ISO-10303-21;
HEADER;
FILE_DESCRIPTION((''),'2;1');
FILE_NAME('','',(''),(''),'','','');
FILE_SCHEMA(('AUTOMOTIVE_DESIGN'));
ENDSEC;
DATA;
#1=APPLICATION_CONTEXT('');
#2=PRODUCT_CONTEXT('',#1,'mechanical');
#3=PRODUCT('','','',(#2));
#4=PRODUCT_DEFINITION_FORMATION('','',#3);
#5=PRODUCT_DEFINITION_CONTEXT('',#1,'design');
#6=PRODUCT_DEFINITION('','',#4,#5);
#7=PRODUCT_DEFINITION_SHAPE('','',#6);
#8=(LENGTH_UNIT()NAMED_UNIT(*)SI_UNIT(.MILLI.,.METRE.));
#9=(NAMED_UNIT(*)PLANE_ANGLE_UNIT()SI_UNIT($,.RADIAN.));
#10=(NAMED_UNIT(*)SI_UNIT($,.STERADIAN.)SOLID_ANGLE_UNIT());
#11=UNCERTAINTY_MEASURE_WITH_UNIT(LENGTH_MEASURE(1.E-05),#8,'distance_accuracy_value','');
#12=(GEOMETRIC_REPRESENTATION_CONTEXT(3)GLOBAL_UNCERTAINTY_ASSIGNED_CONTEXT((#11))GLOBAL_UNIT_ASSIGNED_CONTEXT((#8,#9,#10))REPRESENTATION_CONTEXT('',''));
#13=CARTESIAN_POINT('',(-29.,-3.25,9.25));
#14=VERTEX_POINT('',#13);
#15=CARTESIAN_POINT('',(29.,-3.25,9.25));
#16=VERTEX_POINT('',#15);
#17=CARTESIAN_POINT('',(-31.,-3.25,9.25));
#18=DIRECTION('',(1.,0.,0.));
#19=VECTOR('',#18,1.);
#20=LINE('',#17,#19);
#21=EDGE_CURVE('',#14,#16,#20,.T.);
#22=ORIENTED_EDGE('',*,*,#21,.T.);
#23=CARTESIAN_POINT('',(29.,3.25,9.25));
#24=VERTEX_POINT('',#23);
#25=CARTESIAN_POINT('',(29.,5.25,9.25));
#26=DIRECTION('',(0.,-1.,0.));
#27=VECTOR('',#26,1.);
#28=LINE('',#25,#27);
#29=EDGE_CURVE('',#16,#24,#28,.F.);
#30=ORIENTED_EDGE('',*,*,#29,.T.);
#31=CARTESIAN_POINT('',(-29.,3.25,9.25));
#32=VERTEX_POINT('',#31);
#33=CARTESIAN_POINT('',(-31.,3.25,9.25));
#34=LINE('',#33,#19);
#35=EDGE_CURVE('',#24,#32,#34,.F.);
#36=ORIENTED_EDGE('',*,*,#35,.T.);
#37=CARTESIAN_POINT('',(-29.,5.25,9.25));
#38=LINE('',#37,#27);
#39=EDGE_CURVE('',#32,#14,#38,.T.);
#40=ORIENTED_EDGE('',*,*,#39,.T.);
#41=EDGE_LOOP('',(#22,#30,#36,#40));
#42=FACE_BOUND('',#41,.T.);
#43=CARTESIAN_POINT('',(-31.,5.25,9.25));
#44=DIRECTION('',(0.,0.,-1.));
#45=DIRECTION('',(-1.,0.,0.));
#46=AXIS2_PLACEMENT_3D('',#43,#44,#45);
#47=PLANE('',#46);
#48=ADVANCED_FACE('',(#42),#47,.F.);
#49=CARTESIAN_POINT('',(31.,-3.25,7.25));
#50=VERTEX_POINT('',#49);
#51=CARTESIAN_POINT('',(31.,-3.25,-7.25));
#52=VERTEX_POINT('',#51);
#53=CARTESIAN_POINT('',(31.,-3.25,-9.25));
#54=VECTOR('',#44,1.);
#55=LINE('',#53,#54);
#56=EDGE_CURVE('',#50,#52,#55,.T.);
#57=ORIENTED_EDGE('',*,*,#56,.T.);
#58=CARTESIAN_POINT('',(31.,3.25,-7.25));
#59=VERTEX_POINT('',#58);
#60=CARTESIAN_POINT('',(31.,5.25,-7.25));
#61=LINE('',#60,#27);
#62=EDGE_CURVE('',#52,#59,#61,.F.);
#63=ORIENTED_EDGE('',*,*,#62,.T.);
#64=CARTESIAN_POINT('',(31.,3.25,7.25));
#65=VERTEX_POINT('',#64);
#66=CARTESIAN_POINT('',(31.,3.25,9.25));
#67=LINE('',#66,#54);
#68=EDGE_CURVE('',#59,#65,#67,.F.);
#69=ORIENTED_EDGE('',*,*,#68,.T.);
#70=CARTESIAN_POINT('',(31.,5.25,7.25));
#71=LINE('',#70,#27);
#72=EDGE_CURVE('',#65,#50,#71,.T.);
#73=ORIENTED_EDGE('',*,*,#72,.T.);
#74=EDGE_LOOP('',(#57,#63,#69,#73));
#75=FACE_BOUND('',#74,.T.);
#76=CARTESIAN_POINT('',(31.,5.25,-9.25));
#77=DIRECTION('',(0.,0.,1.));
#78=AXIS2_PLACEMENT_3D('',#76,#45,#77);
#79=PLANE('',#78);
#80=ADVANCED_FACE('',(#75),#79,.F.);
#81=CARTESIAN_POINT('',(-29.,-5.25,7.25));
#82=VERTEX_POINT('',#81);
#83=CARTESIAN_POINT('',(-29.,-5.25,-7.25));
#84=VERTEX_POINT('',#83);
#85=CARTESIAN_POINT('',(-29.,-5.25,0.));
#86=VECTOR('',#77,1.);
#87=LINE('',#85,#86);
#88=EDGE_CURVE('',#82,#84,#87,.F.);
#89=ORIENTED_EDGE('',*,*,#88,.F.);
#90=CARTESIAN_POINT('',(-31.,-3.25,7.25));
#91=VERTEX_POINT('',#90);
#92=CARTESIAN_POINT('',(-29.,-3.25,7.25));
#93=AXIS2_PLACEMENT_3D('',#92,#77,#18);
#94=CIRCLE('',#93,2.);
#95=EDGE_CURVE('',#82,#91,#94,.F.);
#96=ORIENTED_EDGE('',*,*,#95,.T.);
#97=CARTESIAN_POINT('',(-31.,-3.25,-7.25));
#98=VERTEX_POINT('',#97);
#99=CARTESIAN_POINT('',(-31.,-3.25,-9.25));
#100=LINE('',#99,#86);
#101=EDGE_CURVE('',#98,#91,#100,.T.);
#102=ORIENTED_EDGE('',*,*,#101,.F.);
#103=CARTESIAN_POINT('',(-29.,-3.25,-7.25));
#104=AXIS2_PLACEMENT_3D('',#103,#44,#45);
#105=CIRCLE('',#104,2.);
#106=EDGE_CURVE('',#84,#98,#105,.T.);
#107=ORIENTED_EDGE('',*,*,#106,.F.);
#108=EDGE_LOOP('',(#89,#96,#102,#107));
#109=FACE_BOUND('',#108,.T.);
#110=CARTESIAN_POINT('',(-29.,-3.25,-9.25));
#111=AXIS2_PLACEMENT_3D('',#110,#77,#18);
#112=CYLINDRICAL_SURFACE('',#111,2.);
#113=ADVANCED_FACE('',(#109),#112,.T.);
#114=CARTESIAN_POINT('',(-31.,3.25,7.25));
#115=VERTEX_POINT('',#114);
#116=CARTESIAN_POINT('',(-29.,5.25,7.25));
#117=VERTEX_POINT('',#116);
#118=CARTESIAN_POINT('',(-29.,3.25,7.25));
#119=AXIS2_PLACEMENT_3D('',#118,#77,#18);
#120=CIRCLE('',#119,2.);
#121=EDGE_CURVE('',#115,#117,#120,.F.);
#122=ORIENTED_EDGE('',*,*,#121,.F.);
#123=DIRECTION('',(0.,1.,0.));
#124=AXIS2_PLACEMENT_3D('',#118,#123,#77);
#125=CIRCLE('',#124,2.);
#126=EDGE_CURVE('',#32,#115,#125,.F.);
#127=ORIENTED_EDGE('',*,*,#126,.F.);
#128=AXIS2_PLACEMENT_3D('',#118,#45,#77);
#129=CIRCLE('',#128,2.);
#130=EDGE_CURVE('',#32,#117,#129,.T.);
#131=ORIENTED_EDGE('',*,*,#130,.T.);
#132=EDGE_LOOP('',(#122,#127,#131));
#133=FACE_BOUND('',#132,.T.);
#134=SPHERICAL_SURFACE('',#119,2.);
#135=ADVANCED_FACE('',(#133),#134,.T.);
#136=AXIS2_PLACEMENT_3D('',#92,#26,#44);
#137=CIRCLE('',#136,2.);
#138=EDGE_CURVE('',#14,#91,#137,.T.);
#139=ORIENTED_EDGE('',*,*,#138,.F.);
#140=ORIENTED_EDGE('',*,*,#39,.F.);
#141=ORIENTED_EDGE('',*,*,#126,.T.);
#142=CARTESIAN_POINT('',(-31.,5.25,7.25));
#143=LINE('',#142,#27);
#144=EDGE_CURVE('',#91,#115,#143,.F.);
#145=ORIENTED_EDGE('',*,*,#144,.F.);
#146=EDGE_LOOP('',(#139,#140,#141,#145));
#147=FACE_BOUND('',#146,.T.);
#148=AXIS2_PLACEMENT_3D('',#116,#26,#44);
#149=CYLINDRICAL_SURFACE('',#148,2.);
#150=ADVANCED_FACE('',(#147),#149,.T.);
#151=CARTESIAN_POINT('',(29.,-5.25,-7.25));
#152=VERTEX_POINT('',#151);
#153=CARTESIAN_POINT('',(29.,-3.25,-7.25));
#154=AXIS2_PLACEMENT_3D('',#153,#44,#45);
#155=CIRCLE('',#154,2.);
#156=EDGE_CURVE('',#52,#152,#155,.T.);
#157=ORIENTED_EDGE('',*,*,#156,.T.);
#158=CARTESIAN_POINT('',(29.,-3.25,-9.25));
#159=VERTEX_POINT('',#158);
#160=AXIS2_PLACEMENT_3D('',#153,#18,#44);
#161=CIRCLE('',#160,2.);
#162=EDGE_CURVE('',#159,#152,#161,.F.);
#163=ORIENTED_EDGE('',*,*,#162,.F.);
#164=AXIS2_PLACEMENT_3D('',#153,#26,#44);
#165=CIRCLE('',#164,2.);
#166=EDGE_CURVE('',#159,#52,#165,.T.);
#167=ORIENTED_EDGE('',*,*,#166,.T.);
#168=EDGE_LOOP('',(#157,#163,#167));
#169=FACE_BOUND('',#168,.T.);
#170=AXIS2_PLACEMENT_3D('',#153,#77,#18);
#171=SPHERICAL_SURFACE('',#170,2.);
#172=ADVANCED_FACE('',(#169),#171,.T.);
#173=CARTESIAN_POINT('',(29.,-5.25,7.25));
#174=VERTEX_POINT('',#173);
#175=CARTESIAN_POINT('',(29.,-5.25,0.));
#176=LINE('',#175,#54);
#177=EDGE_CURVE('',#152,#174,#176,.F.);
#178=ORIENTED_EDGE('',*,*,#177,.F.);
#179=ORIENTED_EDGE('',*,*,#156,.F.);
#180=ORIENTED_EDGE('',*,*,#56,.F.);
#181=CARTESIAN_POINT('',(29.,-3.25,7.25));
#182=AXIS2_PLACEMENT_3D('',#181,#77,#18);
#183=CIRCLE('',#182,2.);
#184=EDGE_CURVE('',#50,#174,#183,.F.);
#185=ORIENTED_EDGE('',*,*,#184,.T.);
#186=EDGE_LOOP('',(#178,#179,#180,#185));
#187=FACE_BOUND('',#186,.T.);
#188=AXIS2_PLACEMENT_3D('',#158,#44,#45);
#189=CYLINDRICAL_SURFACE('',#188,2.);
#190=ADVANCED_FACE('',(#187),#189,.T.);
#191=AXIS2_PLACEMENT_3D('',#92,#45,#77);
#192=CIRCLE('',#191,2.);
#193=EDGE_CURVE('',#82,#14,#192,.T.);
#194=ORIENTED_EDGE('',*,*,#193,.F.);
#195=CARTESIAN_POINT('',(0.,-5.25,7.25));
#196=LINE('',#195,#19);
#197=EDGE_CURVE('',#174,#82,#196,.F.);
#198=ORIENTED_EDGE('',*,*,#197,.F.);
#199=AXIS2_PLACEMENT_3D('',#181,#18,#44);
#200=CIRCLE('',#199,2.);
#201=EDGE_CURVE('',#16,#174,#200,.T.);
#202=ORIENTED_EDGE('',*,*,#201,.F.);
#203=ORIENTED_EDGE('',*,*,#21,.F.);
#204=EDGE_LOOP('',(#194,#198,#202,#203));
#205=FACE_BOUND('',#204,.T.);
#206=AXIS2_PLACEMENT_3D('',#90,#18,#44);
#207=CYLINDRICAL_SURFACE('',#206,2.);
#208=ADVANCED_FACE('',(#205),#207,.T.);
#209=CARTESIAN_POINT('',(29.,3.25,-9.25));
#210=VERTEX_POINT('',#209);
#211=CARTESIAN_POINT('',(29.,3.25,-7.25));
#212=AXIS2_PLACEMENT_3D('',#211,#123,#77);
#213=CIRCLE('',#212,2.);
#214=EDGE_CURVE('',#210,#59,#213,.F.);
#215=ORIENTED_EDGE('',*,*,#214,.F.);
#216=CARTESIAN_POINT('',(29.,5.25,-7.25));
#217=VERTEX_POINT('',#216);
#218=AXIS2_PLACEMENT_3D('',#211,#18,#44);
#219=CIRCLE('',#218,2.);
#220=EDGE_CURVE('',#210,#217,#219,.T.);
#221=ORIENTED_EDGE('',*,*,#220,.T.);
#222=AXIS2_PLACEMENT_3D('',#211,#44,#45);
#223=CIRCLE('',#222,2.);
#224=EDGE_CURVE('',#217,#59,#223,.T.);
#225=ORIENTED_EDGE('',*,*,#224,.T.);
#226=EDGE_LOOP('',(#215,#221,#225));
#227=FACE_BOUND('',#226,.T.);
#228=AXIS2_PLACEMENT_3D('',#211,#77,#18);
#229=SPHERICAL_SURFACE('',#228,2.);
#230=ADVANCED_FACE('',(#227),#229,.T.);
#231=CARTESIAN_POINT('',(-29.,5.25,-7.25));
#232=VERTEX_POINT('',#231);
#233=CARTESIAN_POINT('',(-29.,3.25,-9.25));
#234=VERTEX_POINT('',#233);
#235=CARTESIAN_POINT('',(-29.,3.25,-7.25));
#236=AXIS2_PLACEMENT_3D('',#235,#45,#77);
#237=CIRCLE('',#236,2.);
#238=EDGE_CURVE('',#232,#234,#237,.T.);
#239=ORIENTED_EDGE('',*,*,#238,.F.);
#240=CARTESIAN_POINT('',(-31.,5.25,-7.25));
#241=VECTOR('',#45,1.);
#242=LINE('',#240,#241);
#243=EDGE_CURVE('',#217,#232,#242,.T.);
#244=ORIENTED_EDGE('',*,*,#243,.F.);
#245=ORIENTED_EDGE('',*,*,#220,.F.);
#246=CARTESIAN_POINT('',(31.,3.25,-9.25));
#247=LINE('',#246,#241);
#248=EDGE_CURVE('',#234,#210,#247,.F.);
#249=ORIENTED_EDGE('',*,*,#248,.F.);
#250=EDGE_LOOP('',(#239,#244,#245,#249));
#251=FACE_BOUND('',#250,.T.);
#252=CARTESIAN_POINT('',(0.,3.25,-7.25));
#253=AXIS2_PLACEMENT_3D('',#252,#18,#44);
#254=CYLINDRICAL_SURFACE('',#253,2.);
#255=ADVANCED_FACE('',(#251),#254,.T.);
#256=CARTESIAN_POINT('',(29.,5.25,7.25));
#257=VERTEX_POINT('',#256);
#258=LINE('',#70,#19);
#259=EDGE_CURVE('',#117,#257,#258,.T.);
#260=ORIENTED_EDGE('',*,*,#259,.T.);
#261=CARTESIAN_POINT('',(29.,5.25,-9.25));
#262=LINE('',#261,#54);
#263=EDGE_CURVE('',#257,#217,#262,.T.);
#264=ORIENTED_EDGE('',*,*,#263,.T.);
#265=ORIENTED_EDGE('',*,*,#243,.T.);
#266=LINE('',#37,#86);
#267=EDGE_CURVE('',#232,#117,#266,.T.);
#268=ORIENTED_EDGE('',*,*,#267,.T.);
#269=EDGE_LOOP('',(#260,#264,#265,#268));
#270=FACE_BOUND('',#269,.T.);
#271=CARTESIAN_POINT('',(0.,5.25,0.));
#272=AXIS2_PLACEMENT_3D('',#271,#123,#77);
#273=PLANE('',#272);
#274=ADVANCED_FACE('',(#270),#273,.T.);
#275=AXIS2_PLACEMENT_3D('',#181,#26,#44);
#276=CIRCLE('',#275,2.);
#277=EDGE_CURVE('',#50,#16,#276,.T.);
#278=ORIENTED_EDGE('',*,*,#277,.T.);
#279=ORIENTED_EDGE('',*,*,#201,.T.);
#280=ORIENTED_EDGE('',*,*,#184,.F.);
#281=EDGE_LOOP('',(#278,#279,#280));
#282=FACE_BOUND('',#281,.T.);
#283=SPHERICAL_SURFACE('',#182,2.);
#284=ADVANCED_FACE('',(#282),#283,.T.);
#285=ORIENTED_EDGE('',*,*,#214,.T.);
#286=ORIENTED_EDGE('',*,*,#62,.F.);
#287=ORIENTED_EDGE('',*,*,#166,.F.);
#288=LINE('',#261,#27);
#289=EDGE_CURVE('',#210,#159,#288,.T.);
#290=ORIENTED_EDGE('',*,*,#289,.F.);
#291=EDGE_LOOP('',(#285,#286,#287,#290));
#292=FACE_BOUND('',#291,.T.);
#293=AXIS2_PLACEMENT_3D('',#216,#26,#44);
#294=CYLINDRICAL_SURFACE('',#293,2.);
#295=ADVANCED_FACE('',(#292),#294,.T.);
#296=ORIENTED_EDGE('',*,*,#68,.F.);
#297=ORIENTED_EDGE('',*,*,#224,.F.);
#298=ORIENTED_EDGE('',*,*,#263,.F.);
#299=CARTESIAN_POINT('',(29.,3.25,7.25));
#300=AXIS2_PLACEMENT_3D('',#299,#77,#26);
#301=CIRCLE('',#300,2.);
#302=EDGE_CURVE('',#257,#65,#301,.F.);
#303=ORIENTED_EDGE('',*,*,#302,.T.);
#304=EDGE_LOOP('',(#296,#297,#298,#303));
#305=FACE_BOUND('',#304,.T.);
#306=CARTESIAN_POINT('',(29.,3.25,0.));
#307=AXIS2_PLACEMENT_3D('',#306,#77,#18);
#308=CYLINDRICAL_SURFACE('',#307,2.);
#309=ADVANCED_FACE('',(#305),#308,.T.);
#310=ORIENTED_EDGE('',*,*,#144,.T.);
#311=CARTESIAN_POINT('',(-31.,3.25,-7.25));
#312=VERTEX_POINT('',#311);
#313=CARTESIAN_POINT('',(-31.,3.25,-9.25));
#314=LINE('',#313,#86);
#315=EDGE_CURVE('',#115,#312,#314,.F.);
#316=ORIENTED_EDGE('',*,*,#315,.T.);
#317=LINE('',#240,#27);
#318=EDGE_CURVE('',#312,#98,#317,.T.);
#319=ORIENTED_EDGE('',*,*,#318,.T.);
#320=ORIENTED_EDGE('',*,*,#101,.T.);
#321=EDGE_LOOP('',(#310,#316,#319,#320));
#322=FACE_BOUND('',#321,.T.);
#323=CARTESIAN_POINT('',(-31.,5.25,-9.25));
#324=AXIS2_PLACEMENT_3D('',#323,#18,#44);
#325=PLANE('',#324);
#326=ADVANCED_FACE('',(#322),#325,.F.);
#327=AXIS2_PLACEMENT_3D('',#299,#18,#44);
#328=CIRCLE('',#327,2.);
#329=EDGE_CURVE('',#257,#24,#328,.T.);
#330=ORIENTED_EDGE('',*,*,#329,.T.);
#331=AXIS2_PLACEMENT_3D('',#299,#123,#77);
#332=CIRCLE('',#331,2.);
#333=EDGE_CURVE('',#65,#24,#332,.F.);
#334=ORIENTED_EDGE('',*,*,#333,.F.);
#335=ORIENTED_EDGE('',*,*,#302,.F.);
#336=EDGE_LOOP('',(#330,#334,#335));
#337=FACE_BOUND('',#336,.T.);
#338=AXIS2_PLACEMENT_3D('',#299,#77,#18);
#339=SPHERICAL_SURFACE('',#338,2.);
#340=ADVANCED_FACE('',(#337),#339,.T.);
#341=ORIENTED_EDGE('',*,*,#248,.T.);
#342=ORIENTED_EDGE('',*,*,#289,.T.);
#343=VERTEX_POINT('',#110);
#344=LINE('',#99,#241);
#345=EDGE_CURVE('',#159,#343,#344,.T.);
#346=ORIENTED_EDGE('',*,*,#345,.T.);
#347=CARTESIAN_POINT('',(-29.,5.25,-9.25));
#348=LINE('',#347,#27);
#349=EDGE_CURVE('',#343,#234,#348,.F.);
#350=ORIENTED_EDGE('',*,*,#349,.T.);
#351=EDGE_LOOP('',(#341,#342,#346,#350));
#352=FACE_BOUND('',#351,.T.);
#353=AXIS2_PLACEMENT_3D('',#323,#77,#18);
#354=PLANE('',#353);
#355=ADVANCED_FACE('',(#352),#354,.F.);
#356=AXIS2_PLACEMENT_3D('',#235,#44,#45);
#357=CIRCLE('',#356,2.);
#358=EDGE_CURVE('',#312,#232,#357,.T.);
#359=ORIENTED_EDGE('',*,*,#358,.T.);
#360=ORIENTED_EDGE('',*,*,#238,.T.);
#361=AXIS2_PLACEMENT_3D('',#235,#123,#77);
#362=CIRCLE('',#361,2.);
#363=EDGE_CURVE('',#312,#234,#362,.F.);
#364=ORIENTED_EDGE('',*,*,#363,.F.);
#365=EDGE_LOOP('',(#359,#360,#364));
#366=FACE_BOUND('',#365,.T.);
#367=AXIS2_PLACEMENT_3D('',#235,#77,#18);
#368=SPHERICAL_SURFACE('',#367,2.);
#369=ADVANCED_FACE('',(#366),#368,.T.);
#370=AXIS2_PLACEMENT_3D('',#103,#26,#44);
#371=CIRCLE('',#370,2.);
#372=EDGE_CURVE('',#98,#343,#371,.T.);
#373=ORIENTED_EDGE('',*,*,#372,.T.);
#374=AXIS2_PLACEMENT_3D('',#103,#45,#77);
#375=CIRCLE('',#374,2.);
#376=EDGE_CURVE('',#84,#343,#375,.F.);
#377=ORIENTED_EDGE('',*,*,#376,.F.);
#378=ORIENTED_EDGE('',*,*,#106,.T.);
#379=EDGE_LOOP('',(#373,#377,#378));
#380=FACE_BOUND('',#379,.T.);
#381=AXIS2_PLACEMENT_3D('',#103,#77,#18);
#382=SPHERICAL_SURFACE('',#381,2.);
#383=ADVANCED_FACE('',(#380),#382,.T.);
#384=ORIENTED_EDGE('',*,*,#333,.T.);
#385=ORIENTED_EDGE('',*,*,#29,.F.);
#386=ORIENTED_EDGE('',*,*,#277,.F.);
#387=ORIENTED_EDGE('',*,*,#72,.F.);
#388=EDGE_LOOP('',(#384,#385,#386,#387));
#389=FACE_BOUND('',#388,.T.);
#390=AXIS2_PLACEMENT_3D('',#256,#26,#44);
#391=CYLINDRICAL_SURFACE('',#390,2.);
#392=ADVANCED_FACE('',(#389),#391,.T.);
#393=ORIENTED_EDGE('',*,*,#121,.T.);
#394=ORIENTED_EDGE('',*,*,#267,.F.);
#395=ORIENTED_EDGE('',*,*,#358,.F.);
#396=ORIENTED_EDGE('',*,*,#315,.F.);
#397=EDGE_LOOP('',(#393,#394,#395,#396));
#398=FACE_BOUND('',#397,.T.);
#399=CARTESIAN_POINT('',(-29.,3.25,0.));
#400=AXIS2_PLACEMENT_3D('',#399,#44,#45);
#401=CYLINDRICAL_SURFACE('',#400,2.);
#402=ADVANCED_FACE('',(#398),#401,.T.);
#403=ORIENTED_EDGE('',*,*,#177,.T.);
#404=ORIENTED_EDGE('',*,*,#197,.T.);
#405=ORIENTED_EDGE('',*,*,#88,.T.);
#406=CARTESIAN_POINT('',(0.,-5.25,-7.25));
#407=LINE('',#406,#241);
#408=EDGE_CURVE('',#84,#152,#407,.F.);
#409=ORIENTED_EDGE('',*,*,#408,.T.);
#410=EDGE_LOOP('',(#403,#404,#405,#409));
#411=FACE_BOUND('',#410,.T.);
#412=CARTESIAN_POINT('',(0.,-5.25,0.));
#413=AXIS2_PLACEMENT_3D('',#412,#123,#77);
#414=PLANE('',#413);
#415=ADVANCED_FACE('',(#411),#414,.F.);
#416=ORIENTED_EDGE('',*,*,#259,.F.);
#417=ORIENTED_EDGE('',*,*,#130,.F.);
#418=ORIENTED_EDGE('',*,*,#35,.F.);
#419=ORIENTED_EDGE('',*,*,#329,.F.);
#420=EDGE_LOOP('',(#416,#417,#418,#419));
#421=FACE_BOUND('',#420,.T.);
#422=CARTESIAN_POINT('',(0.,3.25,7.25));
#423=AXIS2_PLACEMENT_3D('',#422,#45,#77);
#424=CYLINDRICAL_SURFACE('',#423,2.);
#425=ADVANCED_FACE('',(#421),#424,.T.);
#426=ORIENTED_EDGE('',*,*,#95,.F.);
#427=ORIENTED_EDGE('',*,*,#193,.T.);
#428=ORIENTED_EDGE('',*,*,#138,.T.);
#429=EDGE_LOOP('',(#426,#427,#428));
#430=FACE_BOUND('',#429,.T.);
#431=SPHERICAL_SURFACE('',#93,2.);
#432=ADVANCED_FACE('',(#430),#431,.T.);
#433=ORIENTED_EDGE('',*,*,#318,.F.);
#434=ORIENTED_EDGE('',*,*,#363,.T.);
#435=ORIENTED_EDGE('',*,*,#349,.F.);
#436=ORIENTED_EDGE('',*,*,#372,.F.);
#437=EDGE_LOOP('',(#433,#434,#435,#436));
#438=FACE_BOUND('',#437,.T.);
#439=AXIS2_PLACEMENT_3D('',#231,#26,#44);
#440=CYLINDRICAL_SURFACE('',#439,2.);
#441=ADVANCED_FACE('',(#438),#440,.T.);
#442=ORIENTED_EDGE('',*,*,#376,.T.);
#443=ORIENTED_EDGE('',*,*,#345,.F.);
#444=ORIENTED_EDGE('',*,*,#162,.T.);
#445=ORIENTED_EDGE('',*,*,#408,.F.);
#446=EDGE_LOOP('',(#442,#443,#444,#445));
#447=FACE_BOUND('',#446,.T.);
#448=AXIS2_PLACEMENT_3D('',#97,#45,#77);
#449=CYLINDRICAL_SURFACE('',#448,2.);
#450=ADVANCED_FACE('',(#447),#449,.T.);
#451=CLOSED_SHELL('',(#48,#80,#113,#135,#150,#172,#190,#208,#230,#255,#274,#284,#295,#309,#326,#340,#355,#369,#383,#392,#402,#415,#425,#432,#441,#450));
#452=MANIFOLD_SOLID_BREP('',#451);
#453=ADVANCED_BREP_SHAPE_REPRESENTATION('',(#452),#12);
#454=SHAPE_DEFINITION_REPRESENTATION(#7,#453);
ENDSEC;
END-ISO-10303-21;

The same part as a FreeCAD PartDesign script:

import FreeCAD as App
import Part
import Sketcher
from FreeCAD import Vector
Q = App.Units.Quantity

doc = App.newDocument("Part")
params = doc.addObject("Spreadsheet::Sheet", "Params")
for row, (alias, value) in enumerate([
    ("sketch1_width", "62 mm"),
    ("sketch1_height", "18.5 mm"),
    ("pad1_length", "10.5 mm"),
    ("fillet_radius", "2 mm"),
], start=1):
    params.set(f"A{row}", alias)
    params.set(f"B{row}", "=" + value)
    params.setAlias(f"B{row}", alias)

body = doc.addObject("PartDesign::Body", "Body")

sketch1 = body.newObject("Sketcher::SketchObject", "Sketch")
sketch1.AttachmentSupport = (doc.getObject("XZ_Plane"), [""])
sketch1.MapMode = "FlatFace"
sketch1.addGeometry(Part.LineSegment(Vector(-31, -9, 0), Vector(-31, 9, 0)), False)
sketch1.addGeometry(Part.LineSegment(Vector(-31, 9, 0), Vector(31, 9, 0)), False)
sketch1.addGeometry(Part.LineSegment(Vector(31, 9, 0), Vector(31, -9, 0)), False)
sketch1.addGeometry(Part.LineSegment(Vector(31, -9, 0), Vector(-31, -9, 0)), False)
sketch1.addConstraint(Sketcher.Constraint("Coincident", 0, 2, 1, 1))
sketch1.addConstraint(Sketcher.Constraint("Coincident", 1, 2, 2, 1))
sketch1.addConstraint(Sketcher.Constraint("Coincident", 2, 2, 3, 1))
sketch1.addConstraint(Sketcher.Constraint("Coincident", 3, 2, 0, 1))
sketch1.addConstraint(Sketcher.Constraint("Vertical", 0))
sketch1.addConstraint(Sketcher.Constraint("Horizontal", 1))
sketch1.addConstraint(Sketcher.Constraint("Vertical", 2))
sketch1.addConstraint(Sketcher.Constraint("Horizontal", 3))
sketch1.addConstraint(Sketcher.Constraint("Symmetric", 0, 2, 2, 2, -1, 1))
sketch1.addConstraint(Sketcher.Constraint("DistanceX", 1, 1, 1, 2, Q("62 mm")))
sketch1.addConstraint(Sketcher.Constraint("DistanceY", 0, 1, 0, 2, Q("18.5 mm")))
sketch1.setExpression("Constraints[9]", "Params.sketch1_width")
sketch1.setExpression("Constraints[10]", "Params.sketch1_height")
pad1 = body.newObject("PartDesign::Pad", "Pad")
pad1.Profile = sketch1
pad1.setExpression("Length", "Params.pad1_length")
pad1.Midplane = True
doc.recompute()

fillet = body.newObject("PartDesign::Fillet", "Fillet")
fillet.Base = (pad1, ["Edge1"])
fillet.UseAllEdges = True
fillet.setExpression("Radius", "Params.fillet_radius")

doc.recompute()
